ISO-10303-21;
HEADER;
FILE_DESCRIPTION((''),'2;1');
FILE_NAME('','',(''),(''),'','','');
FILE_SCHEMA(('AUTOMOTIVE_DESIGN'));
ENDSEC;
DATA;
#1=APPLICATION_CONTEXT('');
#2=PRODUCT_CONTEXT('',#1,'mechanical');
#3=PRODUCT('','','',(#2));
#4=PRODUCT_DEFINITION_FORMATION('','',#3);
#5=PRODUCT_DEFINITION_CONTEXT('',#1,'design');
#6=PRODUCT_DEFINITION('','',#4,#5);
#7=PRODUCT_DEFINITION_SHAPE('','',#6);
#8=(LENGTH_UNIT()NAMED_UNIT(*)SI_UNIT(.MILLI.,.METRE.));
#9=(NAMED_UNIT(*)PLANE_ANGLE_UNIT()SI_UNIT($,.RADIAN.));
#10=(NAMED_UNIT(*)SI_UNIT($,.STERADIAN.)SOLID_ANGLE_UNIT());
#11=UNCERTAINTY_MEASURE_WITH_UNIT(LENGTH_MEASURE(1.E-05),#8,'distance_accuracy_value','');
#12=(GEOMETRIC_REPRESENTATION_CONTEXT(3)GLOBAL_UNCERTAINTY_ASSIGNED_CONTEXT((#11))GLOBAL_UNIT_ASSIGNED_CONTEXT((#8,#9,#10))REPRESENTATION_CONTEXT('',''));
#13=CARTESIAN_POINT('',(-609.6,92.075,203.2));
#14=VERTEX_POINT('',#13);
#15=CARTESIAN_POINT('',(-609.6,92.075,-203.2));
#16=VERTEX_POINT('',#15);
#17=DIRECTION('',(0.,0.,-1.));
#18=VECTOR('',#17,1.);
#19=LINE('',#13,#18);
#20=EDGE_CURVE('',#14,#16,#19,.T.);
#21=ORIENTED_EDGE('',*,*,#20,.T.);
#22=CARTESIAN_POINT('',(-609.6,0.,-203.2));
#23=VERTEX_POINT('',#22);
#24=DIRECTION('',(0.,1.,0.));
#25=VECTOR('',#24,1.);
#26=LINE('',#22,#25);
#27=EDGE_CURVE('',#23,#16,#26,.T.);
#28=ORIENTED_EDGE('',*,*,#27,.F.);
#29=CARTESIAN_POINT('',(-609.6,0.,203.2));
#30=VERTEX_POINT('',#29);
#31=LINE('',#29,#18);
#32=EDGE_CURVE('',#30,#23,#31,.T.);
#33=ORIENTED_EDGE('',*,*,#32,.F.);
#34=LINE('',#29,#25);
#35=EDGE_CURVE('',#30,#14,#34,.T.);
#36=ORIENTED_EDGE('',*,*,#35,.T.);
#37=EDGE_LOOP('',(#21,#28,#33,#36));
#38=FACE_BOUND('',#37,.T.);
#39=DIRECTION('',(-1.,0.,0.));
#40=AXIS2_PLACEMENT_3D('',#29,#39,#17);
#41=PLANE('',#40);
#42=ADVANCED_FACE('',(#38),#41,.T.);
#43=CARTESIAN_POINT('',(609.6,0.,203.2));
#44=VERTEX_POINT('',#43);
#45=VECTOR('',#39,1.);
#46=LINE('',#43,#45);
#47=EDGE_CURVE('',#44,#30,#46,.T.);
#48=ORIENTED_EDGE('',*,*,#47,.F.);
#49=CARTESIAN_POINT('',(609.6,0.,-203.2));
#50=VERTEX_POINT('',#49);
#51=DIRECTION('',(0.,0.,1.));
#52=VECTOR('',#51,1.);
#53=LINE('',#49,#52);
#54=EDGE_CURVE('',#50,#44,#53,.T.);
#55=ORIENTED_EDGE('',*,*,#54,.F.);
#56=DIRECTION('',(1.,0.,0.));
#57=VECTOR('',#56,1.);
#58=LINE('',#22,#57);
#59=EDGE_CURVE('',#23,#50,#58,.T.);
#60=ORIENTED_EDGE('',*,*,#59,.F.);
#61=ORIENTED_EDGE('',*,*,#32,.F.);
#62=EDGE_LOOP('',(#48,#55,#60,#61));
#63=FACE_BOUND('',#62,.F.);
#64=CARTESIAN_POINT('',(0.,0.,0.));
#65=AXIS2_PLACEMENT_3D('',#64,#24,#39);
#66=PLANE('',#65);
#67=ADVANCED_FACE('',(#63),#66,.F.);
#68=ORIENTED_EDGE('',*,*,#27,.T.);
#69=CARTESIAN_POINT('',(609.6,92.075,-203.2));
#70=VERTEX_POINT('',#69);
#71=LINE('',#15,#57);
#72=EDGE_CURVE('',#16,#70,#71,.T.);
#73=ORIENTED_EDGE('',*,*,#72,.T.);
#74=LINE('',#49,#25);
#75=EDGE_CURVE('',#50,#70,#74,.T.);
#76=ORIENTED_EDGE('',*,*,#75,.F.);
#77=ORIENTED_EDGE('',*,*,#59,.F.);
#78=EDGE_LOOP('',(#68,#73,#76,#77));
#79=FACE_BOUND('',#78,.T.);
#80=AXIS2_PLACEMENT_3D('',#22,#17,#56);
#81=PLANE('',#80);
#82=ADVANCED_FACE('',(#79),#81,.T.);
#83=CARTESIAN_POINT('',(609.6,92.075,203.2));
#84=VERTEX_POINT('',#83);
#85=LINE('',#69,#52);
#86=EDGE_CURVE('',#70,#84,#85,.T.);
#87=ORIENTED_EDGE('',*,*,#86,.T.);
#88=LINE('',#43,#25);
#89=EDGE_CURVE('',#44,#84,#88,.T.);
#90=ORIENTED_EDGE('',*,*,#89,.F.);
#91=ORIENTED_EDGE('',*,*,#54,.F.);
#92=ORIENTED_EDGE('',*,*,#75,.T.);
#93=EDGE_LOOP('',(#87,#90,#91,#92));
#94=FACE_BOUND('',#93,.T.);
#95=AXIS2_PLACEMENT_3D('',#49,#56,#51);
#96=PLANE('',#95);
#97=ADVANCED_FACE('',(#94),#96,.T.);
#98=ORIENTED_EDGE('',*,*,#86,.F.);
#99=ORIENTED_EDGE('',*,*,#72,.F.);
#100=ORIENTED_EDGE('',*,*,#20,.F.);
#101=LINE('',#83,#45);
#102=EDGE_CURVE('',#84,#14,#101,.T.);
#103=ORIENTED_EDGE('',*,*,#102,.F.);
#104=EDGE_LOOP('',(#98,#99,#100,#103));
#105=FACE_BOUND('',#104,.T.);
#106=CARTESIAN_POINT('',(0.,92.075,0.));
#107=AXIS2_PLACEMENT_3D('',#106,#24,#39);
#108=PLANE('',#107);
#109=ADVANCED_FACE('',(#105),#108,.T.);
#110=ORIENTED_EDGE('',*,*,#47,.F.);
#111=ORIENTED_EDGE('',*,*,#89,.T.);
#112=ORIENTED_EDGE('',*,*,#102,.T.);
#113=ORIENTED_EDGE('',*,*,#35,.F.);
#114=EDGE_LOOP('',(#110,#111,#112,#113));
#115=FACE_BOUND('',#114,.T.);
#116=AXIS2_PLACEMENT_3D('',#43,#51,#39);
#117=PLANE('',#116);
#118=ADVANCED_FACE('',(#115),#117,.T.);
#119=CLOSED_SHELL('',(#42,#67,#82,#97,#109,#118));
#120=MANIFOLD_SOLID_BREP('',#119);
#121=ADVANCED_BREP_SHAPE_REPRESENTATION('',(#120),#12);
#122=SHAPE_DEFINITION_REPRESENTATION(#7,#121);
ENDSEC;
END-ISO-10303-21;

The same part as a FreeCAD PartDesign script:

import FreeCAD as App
import Part
import Sketcher

V = App.Vector
Q = App.Units.Quantity


def add_polygon(sketch, points):
    """Adds a closed chain of lines whose ends are joined by coincident constraints."""
    first, n = sketch.GeometryCount, len(points)
    for a, b in zip(points, points[1:] + points[:1]):
        sketch.addGeometry(Part.LineSegment(App.Vector(*a, 0), App.Vector(*b, 0)), False)
    for i in range(n):
        sketch.addConstraint(Sketcher.Constraint("Coincident", first + i, 2, first + (i + 1) % n, 1))

doc = App.newDocument("Part")
body = doc.addObject("PartDesign::Body", "Body")

# Sketch on XZ plane
sketch1 = body.newObject("Sketcher::SketchObject", "Sketch")
sketch1.AttachmentSupport = (doc.getObject("XZ_Plane"), [""])
sketch1.MapMode = "FlatFace"
add_polygon(sketch1, [(610, -203), (-610, -203), (-610, 203), (610, 203)])  # lines 0-3
sketch1.addConstraint(Sketcher.Constraint("Horizontal", 0))
sketch1.addConstraint(Sketcher.Constraint("Vertical", 1))
sketch1.addConstraint(Sketcher.Constraint("Horizontal", 2))
sketch1.addConstraint(Sketcher.Constraint("Vertical", 3))
sketch1.addConstraint(Sketcher.Constraint("Symmetric", 0, 2, 2, 2, -1, 1))
sketch1.addConstraint(Sketcher.Constraint("DistanceX", 0, 2, 0, 1, Q("48 in")))
sketch1.addConstraint(Sketcher.Constraint("DistanceY", 1, 1, 1, 2, Q("16 in")))
pad1 = body.newObject("PartDesign::Pad", "Pad")
pad1.Profile = sketch1
pad1.Length = Q("3.625 in")
pad1.Reversed = True

doc.recompute()
